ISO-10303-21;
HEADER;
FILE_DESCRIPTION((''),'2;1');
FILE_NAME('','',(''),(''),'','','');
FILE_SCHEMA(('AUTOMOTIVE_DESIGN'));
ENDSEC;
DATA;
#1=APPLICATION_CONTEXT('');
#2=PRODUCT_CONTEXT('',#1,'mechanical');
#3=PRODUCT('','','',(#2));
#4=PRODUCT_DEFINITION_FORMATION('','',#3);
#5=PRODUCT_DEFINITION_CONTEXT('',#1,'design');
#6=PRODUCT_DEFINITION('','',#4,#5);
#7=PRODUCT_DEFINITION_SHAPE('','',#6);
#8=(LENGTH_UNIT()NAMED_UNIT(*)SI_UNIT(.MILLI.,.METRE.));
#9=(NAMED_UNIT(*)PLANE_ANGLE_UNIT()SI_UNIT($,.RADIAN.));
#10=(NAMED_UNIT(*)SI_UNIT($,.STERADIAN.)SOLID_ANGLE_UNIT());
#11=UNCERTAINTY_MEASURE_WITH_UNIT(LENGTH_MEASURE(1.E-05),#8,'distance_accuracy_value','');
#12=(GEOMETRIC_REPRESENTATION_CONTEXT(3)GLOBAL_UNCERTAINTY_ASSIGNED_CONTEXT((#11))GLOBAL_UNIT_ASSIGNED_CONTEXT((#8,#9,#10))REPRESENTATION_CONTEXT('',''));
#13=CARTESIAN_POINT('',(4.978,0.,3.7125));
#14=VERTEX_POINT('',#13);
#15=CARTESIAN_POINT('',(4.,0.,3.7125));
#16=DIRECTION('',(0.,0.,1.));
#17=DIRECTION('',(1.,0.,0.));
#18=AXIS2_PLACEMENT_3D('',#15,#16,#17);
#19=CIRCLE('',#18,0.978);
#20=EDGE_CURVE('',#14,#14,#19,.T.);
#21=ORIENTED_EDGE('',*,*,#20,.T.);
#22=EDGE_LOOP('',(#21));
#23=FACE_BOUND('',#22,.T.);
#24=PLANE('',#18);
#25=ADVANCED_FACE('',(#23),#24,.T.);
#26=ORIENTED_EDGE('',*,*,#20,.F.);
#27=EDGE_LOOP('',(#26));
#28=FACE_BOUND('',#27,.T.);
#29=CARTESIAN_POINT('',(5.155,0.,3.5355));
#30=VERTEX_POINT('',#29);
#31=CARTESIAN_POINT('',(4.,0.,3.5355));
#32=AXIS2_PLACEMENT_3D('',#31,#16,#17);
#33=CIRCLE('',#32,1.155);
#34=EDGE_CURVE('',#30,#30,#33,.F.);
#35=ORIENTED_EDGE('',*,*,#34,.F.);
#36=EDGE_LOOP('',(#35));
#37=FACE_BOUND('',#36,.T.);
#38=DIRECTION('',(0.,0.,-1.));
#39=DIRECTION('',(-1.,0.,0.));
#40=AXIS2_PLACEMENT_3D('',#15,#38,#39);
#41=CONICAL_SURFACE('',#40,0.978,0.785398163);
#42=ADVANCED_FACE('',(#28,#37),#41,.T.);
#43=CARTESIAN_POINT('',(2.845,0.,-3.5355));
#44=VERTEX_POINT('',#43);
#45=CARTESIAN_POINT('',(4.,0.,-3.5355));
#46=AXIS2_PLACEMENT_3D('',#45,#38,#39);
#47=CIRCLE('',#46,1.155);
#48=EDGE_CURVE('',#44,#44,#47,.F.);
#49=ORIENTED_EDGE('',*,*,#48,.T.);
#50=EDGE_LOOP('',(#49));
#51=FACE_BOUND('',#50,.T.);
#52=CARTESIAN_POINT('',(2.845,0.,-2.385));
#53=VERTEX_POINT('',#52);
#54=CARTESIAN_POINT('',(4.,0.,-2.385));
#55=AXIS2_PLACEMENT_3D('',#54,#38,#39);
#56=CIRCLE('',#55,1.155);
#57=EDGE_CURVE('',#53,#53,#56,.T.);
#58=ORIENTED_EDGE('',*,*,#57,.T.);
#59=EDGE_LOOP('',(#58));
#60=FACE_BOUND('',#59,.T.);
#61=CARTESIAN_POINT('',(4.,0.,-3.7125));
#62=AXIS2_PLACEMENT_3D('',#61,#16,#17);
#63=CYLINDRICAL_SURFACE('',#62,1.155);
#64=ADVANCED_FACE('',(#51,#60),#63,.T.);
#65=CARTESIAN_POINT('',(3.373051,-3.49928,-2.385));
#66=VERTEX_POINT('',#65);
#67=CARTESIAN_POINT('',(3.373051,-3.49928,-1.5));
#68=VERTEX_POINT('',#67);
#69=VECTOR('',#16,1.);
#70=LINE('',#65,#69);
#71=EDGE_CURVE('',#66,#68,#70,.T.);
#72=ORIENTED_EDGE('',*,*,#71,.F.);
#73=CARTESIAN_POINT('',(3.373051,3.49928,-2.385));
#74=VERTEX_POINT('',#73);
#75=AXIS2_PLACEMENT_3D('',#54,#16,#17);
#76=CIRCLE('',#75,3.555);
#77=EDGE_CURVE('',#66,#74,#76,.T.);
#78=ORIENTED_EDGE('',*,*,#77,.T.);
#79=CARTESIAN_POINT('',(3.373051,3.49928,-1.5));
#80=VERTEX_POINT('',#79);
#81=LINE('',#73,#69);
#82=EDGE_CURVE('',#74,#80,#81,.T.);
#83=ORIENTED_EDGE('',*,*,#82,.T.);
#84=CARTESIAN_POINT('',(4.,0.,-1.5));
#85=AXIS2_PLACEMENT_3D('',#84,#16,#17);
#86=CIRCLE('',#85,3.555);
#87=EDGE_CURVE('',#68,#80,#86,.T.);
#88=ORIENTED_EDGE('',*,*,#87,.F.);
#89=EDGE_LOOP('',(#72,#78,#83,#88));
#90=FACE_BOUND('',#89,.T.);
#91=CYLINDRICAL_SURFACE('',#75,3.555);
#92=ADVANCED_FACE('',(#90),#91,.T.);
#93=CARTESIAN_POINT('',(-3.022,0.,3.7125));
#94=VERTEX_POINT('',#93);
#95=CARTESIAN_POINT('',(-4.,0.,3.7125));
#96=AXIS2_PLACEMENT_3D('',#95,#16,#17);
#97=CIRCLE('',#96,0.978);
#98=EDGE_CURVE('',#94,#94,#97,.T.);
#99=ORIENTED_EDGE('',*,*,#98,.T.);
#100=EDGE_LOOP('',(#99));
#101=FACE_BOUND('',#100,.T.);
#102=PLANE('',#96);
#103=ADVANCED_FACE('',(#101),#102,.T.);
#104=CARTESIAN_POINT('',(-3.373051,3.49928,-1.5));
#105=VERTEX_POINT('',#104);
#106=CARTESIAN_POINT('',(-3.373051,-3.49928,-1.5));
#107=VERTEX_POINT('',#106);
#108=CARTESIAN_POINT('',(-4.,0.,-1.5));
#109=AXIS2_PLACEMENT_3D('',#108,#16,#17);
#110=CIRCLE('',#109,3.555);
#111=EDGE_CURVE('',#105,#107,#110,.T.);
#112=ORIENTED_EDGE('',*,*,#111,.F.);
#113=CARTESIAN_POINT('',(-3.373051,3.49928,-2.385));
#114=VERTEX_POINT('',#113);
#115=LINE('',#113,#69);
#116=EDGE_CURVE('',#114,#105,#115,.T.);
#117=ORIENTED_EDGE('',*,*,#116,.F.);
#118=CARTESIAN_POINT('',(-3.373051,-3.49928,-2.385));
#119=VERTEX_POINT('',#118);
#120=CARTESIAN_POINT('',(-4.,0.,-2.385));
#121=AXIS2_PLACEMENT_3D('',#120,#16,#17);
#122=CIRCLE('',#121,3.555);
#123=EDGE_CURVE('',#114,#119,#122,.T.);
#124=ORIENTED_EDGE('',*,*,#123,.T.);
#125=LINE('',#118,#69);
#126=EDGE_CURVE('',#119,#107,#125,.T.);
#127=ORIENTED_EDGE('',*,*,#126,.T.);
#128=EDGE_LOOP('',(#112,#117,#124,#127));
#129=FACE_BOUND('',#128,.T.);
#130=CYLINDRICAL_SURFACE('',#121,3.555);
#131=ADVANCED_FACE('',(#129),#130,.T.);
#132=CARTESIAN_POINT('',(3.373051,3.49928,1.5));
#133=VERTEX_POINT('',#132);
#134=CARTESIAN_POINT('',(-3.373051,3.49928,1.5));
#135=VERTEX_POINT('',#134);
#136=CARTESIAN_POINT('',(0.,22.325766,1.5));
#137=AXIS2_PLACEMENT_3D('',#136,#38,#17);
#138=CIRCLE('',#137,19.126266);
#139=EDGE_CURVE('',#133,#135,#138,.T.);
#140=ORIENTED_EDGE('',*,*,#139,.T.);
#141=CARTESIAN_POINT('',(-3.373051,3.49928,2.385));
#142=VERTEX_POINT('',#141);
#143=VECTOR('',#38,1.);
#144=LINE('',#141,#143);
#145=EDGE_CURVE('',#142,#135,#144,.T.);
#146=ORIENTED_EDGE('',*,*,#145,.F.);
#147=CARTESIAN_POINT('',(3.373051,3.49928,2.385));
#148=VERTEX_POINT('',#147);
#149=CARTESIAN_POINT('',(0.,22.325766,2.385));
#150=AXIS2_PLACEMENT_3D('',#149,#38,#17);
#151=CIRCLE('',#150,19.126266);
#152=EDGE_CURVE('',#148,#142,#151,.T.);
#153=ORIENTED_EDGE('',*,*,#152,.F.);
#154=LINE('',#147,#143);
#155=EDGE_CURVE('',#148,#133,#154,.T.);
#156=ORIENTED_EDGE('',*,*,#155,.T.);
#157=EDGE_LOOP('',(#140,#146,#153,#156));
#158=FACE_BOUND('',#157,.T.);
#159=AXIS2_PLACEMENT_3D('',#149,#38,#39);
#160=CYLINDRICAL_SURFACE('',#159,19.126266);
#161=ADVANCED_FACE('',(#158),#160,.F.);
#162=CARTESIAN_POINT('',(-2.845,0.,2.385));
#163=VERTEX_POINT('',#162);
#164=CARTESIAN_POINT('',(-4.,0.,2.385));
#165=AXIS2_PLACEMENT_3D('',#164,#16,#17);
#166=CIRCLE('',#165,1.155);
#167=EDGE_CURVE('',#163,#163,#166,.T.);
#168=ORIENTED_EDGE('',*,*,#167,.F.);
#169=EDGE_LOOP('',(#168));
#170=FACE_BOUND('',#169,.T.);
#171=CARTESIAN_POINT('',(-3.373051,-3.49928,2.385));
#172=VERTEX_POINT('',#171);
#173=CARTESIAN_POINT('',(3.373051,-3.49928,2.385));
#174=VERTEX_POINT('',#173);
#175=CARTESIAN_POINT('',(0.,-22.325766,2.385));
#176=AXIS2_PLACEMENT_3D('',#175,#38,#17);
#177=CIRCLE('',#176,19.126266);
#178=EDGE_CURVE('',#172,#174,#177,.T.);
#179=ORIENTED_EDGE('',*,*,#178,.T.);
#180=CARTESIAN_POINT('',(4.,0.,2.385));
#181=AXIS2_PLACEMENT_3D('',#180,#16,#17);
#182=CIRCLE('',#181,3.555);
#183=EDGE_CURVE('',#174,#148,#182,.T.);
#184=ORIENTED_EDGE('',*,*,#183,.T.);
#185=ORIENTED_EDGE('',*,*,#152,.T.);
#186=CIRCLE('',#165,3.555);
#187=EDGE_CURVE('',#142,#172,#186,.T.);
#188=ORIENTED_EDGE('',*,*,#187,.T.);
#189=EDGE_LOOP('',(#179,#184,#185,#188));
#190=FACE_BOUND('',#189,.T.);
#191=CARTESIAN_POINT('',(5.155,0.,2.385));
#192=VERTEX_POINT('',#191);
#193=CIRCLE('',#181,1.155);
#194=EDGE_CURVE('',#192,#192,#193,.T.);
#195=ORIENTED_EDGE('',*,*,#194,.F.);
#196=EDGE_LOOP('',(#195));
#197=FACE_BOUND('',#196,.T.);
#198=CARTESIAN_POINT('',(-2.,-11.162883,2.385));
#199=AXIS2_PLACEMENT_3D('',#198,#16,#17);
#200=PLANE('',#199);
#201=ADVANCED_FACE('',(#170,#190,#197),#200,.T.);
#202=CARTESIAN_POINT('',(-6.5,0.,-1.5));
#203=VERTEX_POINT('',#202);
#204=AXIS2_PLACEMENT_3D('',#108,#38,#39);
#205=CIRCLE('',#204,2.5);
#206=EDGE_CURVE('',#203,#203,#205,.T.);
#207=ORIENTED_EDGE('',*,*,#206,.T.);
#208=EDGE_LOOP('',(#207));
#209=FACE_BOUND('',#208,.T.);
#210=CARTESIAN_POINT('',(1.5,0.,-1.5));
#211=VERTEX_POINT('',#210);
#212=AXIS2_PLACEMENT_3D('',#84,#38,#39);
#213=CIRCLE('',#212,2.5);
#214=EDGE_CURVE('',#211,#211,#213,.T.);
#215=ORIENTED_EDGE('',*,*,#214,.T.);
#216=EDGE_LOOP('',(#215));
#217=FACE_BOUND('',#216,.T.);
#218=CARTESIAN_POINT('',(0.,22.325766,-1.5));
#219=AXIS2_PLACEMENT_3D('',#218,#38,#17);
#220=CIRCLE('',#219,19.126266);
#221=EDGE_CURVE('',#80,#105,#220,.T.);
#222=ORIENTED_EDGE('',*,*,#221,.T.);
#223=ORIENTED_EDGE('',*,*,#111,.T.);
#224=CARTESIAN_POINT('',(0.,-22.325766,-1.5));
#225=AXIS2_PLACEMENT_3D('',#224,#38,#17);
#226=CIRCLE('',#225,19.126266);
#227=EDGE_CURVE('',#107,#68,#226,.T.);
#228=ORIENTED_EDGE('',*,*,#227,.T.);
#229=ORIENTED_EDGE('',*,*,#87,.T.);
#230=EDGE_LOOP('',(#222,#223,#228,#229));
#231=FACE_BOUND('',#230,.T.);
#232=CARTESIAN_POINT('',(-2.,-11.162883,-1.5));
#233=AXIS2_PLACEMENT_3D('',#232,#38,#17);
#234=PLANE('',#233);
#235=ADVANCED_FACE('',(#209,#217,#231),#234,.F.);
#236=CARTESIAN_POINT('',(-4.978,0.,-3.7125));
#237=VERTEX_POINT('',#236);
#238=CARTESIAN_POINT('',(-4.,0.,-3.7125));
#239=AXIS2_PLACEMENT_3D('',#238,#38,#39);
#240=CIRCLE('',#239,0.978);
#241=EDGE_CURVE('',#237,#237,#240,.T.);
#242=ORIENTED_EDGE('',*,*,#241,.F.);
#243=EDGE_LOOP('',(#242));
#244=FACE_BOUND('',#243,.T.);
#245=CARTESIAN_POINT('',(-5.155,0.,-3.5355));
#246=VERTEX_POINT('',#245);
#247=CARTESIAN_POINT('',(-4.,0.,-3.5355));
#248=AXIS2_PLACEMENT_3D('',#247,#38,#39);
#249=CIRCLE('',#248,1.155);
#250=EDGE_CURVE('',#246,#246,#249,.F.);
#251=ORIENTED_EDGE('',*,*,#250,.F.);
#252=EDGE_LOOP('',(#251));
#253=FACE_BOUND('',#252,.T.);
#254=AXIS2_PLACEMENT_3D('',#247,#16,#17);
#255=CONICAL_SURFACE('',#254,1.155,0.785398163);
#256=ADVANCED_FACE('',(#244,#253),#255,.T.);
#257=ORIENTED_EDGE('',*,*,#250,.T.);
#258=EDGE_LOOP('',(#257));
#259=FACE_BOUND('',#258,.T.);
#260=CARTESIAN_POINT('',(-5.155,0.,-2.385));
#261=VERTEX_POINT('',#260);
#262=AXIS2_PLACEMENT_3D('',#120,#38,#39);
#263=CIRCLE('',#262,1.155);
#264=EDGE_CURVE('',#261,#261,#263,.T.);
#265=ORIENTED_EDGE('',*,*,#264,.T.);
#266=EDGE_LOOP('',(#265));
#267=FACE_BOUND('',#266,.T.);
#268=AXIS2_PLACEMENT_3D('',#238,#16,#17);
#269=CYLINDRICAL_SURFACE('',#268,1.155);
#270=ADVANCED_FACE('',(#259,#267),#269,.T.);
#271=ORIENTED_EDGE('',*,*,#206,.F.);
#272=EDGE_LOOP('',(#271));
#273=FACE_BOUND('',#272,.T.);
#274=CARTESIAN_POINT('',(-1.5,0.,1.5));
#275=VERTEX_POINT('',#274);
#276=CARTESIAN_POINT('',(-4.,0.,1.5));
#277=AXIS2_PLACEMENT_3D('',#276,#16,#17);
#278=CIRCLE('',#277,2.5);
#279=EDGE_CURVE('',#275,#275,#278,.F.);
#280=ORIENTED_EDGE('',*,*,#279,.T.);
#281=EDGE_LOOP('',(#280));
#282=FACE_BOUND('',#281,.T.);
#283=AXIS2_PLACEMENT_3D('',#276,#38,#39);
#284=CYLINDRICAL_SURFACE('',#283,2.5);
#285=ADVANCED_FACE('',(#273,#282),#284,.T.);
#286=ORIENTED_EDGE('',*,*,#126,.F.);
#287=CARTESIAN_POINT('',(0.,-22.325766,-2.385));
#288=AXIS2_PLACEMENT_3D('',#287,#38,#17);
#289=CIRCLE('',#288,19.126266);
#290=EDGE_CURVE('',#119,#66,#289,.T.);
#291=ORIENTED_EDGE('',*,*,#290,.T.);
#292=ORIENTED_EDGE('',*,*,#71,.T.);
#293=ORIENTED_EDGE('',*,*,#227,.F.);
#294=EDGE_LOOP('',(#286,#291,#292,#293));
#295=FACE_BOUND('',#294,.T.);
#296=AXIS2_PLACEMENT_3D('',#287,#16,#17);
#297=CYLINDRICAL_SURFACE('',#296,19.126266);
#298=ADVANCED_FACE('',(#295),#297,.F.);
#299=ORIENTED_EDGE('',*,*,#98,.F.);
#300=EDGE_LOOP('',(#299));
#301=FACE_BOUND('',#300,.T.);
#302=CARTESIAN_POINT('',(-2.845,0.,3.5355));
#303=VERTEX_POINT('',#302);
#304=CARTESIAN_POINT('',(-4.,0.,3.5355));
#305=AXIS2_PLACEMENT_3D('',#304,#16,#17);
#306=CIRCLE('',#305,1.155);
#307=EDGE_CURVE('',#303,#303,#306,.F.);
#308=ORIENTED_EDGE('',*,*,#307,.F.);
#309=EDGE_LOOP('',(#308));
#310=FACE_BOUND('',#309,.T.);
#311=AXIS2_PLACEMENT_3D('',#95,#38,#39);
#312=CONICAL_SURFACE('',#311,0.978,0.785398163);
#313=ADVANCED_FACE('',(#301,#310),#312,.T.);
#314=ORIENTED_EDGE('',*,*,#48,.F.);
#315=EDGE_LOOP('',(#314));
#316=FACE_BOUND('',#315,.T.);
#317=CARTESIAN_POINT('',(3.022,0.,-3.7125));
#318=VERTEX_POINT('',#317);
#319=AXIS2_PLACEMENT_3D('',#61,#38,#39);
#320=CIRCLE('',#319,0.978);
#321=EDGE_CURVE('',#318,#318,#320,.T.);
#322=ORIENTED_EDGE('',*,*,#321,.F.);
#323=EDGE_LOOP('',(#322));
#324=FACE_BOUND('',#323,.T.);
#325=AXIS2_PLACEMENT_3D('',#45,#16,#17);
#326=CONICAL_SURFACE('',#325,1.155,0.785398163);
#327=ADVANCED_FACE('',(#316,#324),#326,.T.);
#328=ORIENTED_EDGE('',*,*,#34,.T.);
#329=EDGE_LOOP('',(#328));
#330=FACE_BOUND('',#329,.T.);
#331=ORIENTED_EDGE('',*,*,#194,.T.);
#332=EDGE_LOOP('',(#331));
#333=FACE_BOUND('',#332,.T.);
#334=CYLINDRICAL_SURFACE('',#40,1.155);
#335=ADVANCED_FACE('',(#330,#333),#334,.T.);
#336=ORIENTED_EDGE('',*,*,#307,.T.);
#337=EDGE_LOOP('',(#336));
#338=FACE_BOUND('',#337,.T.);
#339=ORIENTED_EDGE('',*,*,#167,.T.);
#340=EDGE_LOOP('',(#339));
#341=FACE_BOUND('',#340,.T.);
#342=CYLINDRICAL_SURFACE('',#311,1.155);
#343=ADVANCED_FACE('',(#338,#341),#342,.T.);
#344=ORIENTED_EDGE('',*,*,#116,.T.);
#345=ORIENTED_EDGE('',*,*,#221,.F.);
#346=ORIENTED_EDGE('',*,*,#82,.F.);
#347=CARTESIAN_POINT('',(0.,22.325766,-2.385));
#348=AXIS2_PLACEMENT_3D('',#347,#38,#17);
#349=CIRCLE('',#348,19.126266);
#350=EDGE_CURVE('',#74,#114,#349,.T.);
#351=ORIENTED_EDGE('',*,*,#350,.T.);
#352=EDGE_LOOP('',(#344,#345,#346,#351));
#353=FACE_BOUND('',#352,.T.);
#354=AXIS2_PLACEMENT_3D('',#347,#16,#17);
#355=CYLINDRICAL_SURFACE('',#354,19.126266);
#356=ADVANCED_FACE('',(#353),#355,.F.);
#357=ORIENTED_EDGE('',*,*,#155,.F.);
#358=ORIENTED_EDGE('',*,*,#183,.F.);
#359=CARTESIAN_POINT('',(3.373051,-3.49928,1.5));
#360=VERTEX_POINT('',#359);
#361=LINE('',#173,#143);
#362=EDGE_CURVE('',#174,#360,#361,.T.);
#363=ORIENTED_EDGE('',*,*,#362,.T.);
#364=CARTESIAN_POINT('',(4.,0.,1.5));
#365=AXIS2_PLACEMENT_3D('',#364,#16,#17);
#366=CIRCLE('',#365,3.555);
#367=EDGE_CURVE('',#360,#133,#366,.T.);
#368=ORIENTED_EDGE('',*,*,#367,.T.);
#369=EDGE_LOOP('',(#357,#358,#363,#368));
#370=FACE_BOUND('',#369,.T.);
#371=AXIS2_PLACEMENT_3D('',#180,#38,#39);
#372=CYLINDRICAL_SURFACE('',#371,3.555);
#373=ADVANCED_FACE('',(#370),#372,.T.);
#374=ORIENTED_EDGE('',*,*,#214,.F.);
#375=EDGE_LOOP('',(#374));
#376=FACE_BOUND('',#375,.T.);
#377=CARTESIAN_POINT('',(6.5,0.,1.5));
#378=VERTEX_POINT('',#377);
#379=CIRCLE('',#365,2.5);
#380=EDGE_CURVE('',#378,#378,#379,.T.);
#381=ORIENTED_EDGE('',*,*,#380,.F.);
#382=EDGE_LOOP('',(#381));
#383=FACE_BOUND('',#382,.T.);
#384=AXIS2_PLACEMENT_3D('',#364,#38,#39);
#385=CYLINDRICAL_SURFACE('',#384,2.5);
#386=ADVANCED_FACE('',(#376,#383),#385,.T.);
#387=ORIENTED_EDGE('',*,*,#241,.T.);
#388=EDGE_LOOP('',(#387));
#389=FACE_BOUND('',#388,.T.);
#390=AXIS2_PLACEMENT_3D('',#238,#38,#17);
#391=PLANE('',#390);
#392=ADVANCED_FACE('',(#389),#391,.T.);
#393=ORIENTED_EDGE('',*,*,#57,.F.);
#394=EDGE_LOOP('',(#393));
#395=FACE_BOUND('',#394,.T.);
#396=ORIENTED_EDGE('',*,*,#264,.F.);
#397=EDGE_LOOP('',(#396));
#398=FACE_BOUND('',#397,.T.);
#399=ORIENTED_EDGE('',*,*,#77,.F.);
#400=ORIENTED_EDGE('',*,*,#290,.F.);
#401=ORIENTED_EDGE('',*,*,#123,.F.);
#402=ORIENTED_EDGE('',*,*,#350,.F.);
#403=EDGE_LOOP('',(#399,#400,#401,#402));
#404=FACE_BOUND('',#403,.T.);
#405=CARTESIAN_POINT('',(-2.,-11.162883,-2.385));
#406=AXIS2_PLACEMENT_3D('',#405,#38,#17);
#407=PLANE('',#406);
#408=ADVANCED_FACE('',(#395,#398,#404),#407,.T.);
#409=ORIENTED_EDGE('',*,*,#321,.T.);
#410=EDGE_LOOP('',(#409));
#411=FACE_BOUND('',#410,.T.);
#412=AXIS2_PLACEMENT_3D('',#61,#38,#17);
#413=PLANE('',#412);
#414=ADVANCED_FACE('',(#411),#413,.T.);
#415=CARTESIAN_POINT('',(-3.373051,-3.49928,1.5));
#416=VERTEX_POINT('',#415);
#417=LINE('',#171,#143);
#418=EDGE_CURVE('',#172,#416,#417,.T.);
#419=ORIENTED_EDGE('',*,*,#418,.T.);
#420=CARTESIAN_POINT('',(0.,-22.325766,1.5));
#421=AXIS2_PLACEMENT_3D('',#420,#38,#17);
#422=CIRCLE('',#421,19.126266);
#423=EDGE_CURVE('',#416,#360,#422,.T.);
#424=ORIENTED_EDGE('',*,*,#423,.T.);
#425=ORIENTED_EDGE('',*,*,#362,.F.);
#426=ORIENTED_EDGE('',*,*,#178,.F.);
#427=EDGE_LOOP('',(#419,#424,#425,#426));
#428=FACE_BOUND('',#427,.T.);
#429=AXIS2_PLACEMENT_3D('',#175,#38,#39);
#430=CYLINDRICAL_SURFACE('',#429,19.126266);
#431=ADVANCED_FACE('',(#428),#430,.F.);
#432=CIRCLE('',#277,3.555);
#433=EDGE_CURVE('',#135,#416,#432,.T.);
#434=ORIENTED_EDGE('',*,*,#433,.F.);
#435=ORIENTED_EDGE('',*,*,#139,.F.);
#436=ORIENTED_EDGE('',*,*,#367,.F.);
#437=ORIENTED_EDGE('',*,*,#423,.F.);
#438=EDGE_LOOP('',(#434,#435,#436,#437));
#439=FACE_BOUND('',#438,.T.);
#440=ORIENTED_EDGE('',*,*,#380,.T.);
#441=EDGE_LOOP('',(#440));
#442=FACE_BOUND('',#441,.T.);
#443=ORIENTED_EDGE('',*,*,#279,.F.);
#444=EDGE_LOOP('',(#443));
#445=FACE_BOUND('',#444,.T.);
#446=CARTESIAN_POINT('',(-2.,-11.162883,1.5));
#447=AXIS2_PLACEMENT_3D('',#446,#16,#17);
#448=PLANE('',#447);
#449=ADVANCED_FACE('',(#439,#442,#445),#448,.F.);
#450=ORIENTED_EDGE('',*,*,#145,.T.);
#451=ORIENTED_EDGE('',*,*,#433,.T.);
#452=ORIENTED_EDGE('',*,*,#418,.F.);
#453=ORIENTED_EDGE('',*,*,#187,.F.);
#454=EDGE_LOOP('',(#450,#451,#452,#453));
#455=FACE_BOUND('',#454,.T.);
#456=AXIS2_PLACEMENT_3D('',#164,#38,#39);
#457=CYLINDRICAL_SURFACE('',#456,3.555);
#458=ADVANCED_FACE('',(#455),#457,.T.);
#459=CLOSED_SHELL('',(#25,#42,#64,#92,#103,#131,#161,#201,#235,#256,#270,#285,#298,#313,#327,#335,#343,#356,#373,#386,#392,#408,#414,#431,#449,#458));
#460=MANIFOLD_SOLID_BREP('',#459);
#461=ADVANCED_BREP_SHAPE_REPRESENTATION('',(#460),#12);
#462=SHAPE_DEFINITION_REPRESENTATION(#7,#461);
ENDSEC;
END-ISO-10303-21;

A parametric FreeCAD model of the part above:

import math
import FreeCAD as App
import Part
import Sketcher

V = App.Vector
Q = App.Units.Quantity


def edges_at(feature, points):
    """Names of the edges that pass closest to the given points."""
    edges = feature.Shape.Edges
    near = lambda p: min(range(len(edges)), key=lambda i: edges[i].distToShape(Part.Vertex(*p))[0])
    return sorted({f"Edge{near(p) + 1}" for p in points})

doc = App.newDocument("Part")
body = doc.addObject("PartDesign::Body", "Body")

# Sketch on XY plane
sketch1 = doc.addObject("Sketcher::SketchObject", "Sketch")
body.addObject(sketch1)
sketch1.AttachmentSupport = (doc.XY_Plane, [""])
sketch1.MapMode = "FlatFace"
sketch1.addGeometry(Part.Circle(V(4, 0, 0), V(0, 0, 1), 2.5), False)
sketch1.addConstraint([
    Sketcher.Constraint("PointOnObject", 0, 3, -1),
    Sketcher.Constraint("Diameter", 0, Q("5 mm")),
    Sketcher.Constraint("DistanceX", -1, 1, 0, 3, Q("4 mm")),
])
pad1 = doc.addObject("PartDesign::Pad", "Pad")
body.addObject(pad1)
pad1.Profile = sketch1
pad1.Length = 3
pad1.Midplane = True
body2 = doc.addObject("PartDesign::Body", "Body001")

# Sketch on XY plane
sketch2 = doc.addObject("Sketcher::SketchObject", "Sketch001")
body2.addObject(sketch2)
sketch2.AttachmentSupport = (doc.getObject("XY_Plane001"), [""])
sketch2.MapMode = "FlatFace"
sketch2.addGeometry(Part.Circle(V(-4, 0, 0), V(0, 0, 1), 2.5), False)
sketch2.addConstraint([
    Sketcher.Constraint("PointOnObject", 0, 3, -1),
    Sketcher.Constraint("Diameter", 0, Q("5 mm")),
    Sketcher.Constraint("DistanceX", 0, 3, -1, 1, Q("4 mm")),
])
pad2 = doc.addObject("PartDesign::Pad", "Pad001")
body2.addObject(pad2)
pad2.Profile = sketch2
pad2.Length = 3
pad2.Midplane = True
body.AllowCompound = True
doc.recompute()

boolean = doc.addObject("PartDesign::Boolean", "Boolean")
body.addObject(boolean)
boolean.Type = "Fuse"
boolean.addObjects([body2])

# Sketch on XY plane
sketch3 = doc.addObject("Sketcher::SketchObject", "Sketch002")
body.addObject(sketch3)
sketch3.AttachmentSupport = (doc.XY_Plane, [""])
sketch3.MapMode = "FlatFace"
sketch3.AttachmentOffset = App.Placement(V(0, 0, 1.5), App.Rotation())
sketch3.addGeometry([
    Part.ArcOfCircle(Part.Circle(V(-4, 0, 0), V(0, 0, 1), 3.6), math.radians(80), math.radians(280)),
    Part.ArcOfCircle(Part.Circle(V(0, -22.3, 0), V(0, 0, 1), 19.1), math.radians(80), math.radians(100)),
    Part.ArcOfCircle(Part.Circle(V(4, 0, 0), V(0, 0, 1), 3.6), math.radians(-100), math.radians(100)),
    Part.ArcOfCircle(Part.Circle(V(0, 22.3, 0), V(0, 0, 1), 19.1), math.radians(-100), math.radians(-80)),
], False)
sketch3.addConstraint([
    Sketcher.Constraint("Tangent", 0, 2, 1, 2),
    Sketcher.Constraint("Tangent", 1, 1, 2, 1),
    Sketcher.Constraint("Tangent", 2, 2, 3, 2),
    Sketcher.Constraint("Tangent", 3, 1, 0, 1),
    Sketcher.Constraint("Equal", 0, 2),
    Sketcher.Constraint("Equal", 1, 3),
    Sketcher.Constraint("Symmetric", 0, 3, 2, 3, -1, 1),
    Sketcher.Constraint("PointOnObject", 0, 3, -1),
    Sketcher.Constraint("DistanceX", 0, 3, -1, 1, Q("4 mm")),
    Sketcher.Constraint("Radius", 0, Q("3.555 mm")),
    Sketcher.Constraint("Radius", 1, Q("19.126266 mm")),
])
pad3 = doc.addObject("PartDesign::Pad", "Pad002")
body.addObject(pad3)
pad3.Profile = sketch3
pad3.Length = 0.885

# Sketch on XY plane
sketch4 = doc.addObject("Sketcher::SketchObject", "Sketch003")
body.addObject(sketch4)
sketch4.AttachmentSupport = (doc.XY_Plane, [""])
sketch4.MapMode = "FlatFace"
sketch4.AttachmentOffset = App.Placement(V(0, 0, 2.385), App.Rotation())
sketch4.addGeometry([
    Part.Circle(V(4, 0, 0), V(0, 0, 1), 1.2),
    Part.Circle(V(-4, 0, 0), V(0, 0, 1), 1.2),
], False)
sketch4.addConstraint([
    Sketcher.Constraint("Equal", 0, 1),
    Sketcher.Constraint("Symmetric", 0, 3, 1, 3, -1, 1),
    Sketcher.Constraint("PointOnObject", 0, 3, -1),
    Sketcher.Constraint("Diameter", 0, Q("2.31 mm")),
    Sketcher.Constraint("DistanceX", -1, 1, 0, 3, Q("4 mm")),
])
pad4 = doc.addObject("PartDesign::Pad", "Pad003")
body.addObject(pad4)
pad4.Profile = sketch4
pad4.Length = 1.3275
doc.recompute()

chamfer = doc.addObject("PartDesign::Chamfer", "Chamfer")
body.addObject(chamfer)
chamfer.Base = (pad4, edges_at(pad4, [(2.845, 0, 3.712), (-5.155, 0, 3.712)]))
chamfer.Size = 0.177
doc.recompute()

mirrored = doc.addObject("PartDesign::Mirrored", "Mirrored")
body.addObject(mirrored)
mirrored.Originals = [pad3, pad4]
mirrored.MirrorPlane = (doc.XY_Plane, [""])
body.Tip = mirrored
doc.recompute()

chamfer2 = doc.addObject("PartDesign::Chamfer", "Chamfer001")
body.addObject(chamfer2)
chamfer2.Base = (mirrored, edges_at(mirrored, [(2.845, 0, -3.712), (-5.155, 0, -3.712)]))
chamfer2.Size = 0.177

doc.recompute()
